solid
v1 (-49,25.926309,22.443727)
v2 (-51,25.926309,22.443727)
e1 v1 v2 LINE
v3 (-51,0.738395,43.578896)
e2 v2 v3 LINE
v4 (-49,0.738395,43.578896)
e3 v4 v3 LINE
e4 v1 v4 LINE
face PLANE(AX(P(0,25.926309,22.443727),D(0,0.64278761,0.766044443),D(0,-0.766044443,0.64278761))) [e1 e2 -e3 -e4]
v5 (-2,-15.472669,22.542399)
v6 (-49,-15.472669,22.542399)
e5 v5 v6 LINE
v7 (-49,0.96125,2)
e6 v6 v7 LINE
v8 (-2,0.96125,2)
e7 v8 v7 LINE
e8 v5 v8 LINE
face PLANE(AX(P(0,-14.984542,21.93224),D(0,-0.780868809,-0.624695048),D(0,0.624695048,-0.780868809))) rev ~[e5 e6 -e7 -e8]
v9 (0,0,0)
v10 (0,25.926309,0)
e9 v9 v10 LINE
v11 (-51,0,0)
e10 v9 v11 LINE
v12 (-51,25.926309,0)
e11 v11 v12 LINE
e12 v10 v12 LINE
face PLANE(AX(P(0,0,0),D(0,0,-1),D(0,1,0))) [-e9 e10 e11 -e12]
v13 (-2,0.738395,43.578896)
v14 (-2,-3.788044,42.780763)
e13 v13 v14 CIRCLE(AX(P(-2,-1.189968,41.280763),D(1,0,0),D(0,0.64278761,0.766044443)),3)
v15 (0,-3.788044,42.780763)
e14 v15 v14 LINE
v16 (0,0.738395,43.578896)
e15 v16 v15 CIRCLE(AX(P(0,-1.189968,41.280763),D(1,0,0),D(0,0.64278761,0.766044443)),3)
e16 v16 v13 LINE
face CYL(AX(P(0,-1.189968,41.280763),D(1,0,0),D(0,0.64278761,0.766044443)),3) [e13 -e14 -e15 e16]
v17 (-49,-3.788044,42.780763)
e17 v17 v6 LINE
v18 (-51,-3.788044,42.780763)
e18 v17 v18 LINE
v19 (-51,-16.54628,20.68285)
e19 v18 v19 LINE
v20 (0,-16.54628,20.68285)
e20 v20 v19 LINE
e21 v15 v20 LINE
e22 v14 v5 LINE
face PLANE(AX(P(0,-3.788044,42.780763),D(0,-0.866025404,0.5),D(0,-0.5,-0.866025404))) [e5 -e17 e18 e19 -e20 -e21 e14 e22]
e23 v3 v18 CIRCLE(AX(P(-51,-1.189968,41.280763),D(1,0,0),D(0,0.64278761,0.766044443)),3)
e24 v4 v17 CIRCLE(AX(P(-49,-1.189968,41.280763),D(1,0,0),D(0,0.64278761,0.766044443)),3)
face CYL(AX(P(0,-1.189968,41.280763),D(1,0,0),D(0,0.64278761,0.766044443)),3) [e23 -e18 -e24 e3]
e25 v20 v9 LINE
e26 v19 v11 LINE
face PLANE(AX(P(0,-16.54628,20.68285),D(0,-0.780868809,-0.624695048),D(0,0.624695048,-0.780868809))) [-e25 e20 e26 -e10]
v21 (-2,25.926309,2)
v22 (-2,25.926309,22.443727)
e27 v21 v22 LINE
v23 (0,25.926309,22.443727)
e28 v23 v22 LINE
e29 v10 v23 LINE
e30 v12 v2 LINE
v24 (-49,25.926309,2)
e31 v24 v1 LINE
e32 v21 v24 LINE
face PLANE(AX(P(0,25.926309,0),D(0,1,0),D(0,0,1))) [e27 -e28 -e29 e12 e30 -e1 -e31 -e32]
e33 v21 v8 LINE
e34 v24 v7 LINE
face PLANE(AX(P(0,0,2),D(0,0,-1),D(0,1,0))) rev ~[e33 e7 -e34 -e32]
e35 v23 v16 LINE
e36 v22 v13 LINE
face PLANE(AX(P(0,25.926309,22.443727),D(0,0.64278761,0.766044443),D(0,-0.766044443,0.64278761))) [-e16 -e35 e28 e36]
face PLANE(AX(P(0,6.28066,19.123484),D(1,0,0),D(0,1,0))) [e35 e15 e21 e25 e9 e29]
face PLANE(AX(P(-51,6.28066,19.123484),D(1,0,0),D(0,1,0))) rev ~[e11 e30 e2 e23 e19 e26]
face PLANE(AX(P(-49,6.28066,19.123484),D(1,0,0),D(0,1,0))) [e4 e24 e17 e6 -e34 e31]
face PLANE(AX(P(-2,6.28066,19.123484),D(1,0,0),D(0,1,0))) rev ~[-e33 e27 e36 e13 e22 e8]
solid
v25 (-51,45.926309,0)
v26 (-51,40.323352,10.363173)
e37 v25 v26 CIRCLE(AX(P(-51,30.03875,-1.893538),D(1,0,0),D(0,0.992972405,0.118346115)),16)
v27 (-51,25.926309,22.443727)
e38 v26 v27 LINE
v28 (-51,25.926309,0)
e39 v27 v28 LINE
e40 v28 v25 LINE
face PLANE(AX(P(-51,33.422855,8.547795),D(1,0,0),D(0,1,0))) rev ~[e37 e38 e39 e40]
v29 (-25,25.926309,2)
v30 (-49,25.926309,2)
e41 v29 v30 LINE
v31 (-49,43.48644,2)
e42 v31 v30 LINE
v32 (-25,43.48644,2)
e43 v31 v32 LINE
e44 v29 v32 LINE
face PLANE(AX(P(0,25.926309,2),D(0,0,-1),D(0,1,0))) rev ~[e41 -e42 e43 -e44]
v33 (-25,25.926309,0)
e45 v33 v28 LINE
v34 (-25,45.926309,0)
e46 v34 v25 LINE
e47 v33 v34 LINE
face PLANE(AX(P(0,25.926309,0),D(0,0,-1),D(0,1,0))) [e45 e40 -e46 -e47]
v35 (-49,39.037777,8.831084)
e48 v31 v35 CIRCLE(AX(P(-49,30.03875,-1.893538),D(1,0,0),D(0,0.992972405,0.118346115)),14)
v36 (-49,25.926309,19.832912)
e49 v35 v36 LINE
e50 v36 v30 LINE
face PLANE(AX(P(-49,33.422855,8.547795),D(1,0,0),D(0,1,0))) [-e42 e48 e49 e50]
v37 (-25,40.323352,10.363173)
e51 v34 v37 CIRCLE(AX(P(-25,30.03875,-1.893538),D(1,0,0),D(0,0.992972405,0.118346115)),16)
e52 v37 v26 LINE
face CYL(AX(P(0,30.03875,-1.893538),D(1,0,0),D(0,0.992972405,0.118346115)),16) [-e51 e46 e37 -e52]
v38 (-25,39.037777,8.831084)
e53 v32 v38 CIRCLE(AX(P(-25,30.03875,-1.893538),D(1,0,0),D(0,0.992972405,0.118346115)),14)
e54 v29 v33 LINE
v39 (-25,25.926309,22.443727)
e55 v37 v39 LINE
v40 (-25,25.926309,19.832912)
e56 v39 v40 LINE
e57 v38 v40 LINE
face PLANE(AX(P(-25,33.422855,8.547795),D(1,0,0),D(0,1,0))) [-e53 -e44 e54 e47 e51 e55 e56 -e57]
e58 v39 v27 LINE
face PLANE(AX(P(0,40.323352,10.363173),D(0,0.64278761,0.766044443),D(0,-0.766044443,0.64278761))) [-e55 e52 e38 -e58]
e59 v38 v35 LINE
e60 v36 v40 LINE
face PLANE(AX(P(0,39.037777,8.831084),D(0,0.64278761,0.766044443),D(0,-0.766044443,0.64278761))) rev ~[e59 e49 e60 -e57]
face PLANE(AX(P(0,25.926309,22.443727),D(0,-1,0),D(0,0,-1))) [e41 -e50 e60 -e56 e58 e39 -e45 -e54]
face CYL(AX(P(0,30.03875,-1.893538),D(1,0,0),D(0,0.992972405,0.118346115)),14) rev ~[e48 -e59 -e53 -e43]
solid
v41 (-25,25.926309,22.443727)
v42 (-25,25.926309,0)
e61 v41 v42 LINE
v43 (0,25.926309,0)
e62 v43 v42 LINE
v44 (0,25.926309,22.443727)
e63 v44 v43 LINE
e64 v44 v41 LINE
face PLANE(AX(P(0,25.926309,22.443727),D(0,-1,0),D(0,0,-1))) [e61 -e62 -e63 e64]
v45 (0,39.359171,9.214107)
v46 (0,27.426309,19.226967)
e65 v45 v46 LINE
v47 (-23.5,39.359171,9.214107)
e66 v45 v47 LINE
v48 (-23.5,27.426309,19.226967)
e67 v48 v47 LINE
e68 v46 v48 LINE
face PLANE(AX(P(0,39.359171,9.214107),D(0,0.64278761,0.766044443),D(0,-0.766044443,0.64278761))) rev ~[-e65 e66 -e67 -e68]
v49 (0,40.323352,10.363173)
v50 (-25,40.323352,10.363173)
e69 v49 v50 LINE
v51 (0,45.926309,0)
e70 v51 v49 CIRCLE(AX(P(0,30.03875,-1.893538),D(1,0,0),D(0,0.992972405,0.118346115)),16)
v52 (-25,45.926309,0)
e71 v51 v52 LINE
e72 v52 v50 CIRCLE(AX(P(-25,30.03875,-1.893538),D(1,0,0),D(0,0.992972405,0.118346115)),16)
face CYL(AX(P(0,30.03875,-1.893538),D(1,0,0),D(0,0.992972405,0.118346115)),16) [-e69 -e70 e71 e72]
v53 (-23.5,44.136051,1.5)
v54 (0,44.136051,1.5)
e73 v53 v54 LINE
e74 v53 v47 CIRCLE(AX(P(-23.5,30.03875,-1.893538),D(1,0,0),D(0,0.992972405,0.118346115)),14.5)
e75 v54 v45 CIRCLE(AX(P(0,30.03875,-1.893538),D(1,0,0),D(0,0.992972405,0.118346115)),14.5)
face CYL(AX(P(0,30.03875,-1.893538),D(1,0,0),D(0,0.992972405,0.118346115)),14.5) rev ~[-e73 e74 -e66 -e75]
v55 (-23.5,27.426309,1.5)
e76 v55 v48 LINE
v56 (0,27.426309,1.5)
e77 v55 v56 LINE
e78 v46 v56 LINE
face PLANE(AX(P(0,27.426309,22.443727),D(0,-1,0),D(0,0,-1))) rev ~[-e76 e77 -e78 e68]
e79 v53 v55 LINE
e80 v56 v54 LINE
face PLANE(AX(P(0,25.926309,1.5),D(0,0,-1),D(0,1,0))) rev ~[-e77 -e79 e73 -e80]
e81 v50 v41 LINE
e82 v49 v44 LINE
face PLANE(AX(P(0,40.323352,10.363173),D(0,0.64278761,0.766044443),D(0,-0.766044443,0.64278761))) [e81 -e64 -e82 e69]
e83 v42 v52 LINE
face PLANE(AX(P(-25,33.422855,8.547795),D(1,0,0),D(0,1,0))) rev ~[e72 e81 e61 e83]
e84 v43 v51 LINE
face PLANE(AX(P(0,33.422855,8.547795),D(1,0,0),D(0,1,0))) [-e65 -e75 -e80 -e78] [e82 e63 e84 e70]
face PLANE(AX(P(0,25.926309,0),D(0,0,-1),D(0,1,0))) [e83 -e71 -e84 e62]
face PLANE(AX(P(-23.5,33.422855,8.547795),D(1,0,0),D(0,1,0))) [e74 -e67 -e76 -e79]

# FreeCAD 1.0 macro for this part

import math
import FreeCAD as App
import Part
import Sketcher

V = App.Vector
Q = App.Units.Quantity


def faces_at(feature, points):
    """Names of the faces that lie closest to the given points."""
    faces = feature.Shape.Faces
    near = lambda p: min(range(len(faces)), key=lambda i: faces[i].distToShape(Part.Vertex(*p))[0])
    return sorted({f"Face{near(p) + 1}" for p in points})

doc = App.newDocument("Part")
body = doc.addObject("PartDesign::Body", "Body")

# Sketch on YZ plane
sketch1 = body.newObject("Sketcher::SketchObject", "Sketch")
sketch1.AttachmentSupport = (doc.getObject("YZ_Plane"), [""])
sketch1.MapMode = "FlatFace"
sketch1.addGeometry([
    Part.LineSegment(V(-3.8, 42.8, 0), V(-16.5, 20.7, 0)),  # 0
    Part.LineSegment(V(-16.5, 20.7, 0), V(0, 0, 0)),  # 1
    Part.LineSegment(V(0, 0, 0), V(25.9, 0, 0)),  # 2
    Part.LineSegment(V(25.9, 0, 0), V(25.9, 22.4, 0)),  # 3
    Part.LineSegment(V(25.9, 22.4, 0), V(0.7, 43.6, 0)),  # 4
    Part.ArcOfCircle(Part.Circle(V(-1.2, 41.3, 0), V(0, 0, 1), 3), math.radians(50), math.radians(150)),  # 5
], False)
sketch1.addConstraint([
    Sketcher.Constraint("Coincident", 0, 2, 1, 1),
    Sketcher.Constraint("Coincident", 1, 2, 2, 1),
    Sketcher.Constraint("Coincident", 2, 2, 3, 1),
    Sketcher.Constraint("Coincident", 3, 2, 4, 1),
    Sketcher.Constraint("Tangent", 4, 2, 5, 1),
    Sketcher.Constraint("Tangent", 5, 2, 0, 1),
    Sketcher.Constraint("Horizontal", 2),
    Sketcher.Constraint("Vertical", 3),
    Sketcher.Constraint("Coincident", 1, 2, -1, 1),
    Sketcher.Constraint("Radius", 5, Q("3 mm")),
    Sketcher.Constraint("Angle", 0, Q("-120 deg")),
    Sketcher.Constraint("Angle", 4, Q("140 deg")),
    Sketcher.Constraint("DistanceX", 2, 1, 2, 2, Q("25.926309 mm")),
    Sketcher.Constraint("Distance", 0, Q("25.516472 mm")),
    Sketcher.Constraint("Distance", 1, Q("26.486972 mm")),
    Sketcher.Constraint("DistanceY", 3, 1, 3, 2, Q("22.443727 mm")),
])
pad1 = body.newObject("PartDesign::Pad", "Pad")
pad1.Profile = sketch1
pad1.Length = 51
pad1.Reversed = True
doc.recompute()

thickness = body.newObject("PartDesign::Thickness", "Thickness")
thickness.Base = (pad1, faces_at(pad1, [
    (-25.5, 13.332, 33.011),
    (-25.5, -10.167, 31.732),
    (-25.5, -1.711, 44.235),
    (-25.5, 25.926, 11.222),
]))
thickness.Value = 2
thickness.Reversed = True
thickness.Join = "Arc"
body2 = doc.addObject("PartDesign::Body", "Body001")

# Sketch on YZ plane
sketch2 = body2.newObject("Sketcher::SketchObject", "Sketch001")
sketch2.AttachmentSupport = (doc.getObject("YZ_Plane001"), [""])
sketch2.MapMode = "FlatFace"
sketch2.addGeometry([
    Part.LineSegment(V(26, 22, 0), V(26, 0, 0)),
    Part.LineSegment(V(26, 0, 0), V(46, 0, 0)),
    Part.ArcOfCircle(Part.Circle(V(30, -2, 0), V(0, 0, 1), 16), math.radians(7), math.radians(50)),
    Part.LineSegment(V(40, 10, 0), V(26, 22, 0)),
], False)
sketch2.addConstraint([
    Sketcher.Constraint("Coincident", 0, 2, 1, 1),
    Sketcher.Constraint("Coincident", 1, 2, 2, 1),
    Sketcher.Constraint("Tangent", 2, 2, 3, 1),
    Sketcher.Constraint("Coincident", 3, 2, 0, 1),
    Sketcher.Constraint("Vertical", 0),
    Sketcher.Constraint("Horizontal", 1),
    Sketcher.Constraint("PointOnObject", 0, 2, -1),
    Sketcher.Constraint("Radius", 2, Q("16 mm")),
    Sketcher.Constraint("DistanceX", 1, 1, 1, 2, Q("20 mm")),
    Sketcher.Constraint("Angle", 3, Q("140 deg")),
    Sketcher.Constraint("DistanceY", 0, 2, 0, 1, Q("22.443727 mm")),
    Sketcher.Constraint("DistanceX", -1, 1, 2, 3, Q("30.03875 mm")),
])
pad2 = body2.newObject("PartDesign::Pad", "Pad001")
pad2.Profile = sketch2
pad2.Length = 51
pad2.Reversed = True

# Sketch on YZ plane
sketch3 = body2.newObject("Sketcher::SketchObject", "Sketch002")
sketch3.AttachmentSupport = (doc.getObject("YZ_Plane001"), [""])
sketch3.MapMode = "FlatFace"
sketch3.addGeometry([
    Part.LineSegment(V(26, 22, 0), V(26, 0, 0)),
    Part.LineSegment(V(26, 0, 0), V(46, 0, 0)),
    Part.ArcOfCircle(Part.Circle(V(30, -2, 0), V(0, 0, 1), 16), math.radians(7), math.radians(50)),
    Part.LineSegment(V(40, 10, 0), V(26, 22, 0)),
], False)
sketch3.addConstraint([
    Sketcher.Constraint("Coincident", 0, 2, 1, 1),
    Sketcher.Constraint("Coincident", 1, 2, 2, 1),
    Sketcher.Constraint("Tangent", 2, 2, 3, 1),
    Sketcher.Constraint("Coincident", 3, 2, 0, 1),
    Sketcher.Constraint("Vertical", 0),
    Sketcher.Constraint("Horizontal", 1),
    Sketcher.Constraint("PointOnObject", 0, 2, -1),
    Sketcher.Constraint("Radius", 2, Q("16 mm")),
    Sketcher.Constraint("DistanceX", 1, 1, 1, 2, Q("20 mm")),
    Sketcher.Constraint("Angle", 3, Q("140 deg")),
    Sketcher.Constraint("DistanceY", 0, 2, 0, 1, Q("22.443727 mm")),
    Sketcher.Constraint("DistanceX", -1, 1, 2, 3, Q("30.03875 mm")),
])
pocket1 = body2.newObject("PartDesign::Pocket", "Pocket")
pocket1.Profile = sketch3
pocket1.Length = 25
doc.recompute()

thickness2 = body2.newObject("PartDesign::Thickness", "Thickness001")
thickness2.Base = (pocket1, faces_at(pocket1, [(-38, 25.926, 11.222), (-25, 35.926, 11.222)]))
thickness2.Value = 2
thickness2.Reversed = True
thickness2.Join = "Arc"
body3 = doc.addObject("PartDesign::Body", "Body002")

# Sketch on YZ plane
sketch4 = body3.newObject("Sketcher::SketchObject", "Sketch003")
sketch4.AttachmentSupport = (doc.getObject("YZ_Plane002"), [""])
sketch4.MapMode = "FlatFace"
sketch4.addGeometry([
    Part.LineSegment(V(26, 22, 0), V(26, 0, 0)),
    Part.LineSegment(V(26, 0, 0), V(46, 0, 0)),
    Part.ArcOfCircle(Part.Circle(V(30, -2, 0), V(0, 0, 1), 16), math.radians(7), math.radians(50)),
    Part.LineSegment(V(40, 10, 0), V(26, 22, 0)),
], False)
sketch4.addConstraint([
    Sketcher.Constraint("Coincident", 0, 2, 1, 1),
    Sketcher.Constraint("Coincident", 1, 2, 2, 1),
    Sketcher.Constraint("Tangent", 2, 2, 3, 1),
    Sketcher.Constraint("Coincident", 3, 2, 0, 1),
    Sketcher.Constraint("Vertical", 0),
    Sketcher.Constraint("Horizontal", 1),
    Sketcher.Constraint("PointOnObject", 0, 2, -1),
    Sketcher.Constraint("Radius", 2, Q("16 mm")),
    Sketcher.Constraint("DistanceX", 1, 1, 1, 2, Q("20 mm")),
    Sketcher.Constraint("Angle", 3, Q("140 deg")),
    Sketcher.Constraint("DistanceY", 0, 2, 0, 1, Q("22.443727 mm")),
    Sketcher.Constraint("DistanceX", -1, 1, 2, 3, Q("30.03875 mm")),
])
pad3 = body3.newObject("PartDesign::Pad", "Pad002")
pad3.Profile = sketch4
pad3.Length = 25
pad3.Reversed = True
doc.recompute()

thickness3 = body3.newObject("PartDesign::Thickness", "Thickness002")
thickness3.Base = (pad3, faces_at(pad3, [(0, 35.926, 11.222)]))
thickness3.Value = 1.5
thickness3.Reversed = True
thickness3.Join = "Arc"

doc.recompute()
